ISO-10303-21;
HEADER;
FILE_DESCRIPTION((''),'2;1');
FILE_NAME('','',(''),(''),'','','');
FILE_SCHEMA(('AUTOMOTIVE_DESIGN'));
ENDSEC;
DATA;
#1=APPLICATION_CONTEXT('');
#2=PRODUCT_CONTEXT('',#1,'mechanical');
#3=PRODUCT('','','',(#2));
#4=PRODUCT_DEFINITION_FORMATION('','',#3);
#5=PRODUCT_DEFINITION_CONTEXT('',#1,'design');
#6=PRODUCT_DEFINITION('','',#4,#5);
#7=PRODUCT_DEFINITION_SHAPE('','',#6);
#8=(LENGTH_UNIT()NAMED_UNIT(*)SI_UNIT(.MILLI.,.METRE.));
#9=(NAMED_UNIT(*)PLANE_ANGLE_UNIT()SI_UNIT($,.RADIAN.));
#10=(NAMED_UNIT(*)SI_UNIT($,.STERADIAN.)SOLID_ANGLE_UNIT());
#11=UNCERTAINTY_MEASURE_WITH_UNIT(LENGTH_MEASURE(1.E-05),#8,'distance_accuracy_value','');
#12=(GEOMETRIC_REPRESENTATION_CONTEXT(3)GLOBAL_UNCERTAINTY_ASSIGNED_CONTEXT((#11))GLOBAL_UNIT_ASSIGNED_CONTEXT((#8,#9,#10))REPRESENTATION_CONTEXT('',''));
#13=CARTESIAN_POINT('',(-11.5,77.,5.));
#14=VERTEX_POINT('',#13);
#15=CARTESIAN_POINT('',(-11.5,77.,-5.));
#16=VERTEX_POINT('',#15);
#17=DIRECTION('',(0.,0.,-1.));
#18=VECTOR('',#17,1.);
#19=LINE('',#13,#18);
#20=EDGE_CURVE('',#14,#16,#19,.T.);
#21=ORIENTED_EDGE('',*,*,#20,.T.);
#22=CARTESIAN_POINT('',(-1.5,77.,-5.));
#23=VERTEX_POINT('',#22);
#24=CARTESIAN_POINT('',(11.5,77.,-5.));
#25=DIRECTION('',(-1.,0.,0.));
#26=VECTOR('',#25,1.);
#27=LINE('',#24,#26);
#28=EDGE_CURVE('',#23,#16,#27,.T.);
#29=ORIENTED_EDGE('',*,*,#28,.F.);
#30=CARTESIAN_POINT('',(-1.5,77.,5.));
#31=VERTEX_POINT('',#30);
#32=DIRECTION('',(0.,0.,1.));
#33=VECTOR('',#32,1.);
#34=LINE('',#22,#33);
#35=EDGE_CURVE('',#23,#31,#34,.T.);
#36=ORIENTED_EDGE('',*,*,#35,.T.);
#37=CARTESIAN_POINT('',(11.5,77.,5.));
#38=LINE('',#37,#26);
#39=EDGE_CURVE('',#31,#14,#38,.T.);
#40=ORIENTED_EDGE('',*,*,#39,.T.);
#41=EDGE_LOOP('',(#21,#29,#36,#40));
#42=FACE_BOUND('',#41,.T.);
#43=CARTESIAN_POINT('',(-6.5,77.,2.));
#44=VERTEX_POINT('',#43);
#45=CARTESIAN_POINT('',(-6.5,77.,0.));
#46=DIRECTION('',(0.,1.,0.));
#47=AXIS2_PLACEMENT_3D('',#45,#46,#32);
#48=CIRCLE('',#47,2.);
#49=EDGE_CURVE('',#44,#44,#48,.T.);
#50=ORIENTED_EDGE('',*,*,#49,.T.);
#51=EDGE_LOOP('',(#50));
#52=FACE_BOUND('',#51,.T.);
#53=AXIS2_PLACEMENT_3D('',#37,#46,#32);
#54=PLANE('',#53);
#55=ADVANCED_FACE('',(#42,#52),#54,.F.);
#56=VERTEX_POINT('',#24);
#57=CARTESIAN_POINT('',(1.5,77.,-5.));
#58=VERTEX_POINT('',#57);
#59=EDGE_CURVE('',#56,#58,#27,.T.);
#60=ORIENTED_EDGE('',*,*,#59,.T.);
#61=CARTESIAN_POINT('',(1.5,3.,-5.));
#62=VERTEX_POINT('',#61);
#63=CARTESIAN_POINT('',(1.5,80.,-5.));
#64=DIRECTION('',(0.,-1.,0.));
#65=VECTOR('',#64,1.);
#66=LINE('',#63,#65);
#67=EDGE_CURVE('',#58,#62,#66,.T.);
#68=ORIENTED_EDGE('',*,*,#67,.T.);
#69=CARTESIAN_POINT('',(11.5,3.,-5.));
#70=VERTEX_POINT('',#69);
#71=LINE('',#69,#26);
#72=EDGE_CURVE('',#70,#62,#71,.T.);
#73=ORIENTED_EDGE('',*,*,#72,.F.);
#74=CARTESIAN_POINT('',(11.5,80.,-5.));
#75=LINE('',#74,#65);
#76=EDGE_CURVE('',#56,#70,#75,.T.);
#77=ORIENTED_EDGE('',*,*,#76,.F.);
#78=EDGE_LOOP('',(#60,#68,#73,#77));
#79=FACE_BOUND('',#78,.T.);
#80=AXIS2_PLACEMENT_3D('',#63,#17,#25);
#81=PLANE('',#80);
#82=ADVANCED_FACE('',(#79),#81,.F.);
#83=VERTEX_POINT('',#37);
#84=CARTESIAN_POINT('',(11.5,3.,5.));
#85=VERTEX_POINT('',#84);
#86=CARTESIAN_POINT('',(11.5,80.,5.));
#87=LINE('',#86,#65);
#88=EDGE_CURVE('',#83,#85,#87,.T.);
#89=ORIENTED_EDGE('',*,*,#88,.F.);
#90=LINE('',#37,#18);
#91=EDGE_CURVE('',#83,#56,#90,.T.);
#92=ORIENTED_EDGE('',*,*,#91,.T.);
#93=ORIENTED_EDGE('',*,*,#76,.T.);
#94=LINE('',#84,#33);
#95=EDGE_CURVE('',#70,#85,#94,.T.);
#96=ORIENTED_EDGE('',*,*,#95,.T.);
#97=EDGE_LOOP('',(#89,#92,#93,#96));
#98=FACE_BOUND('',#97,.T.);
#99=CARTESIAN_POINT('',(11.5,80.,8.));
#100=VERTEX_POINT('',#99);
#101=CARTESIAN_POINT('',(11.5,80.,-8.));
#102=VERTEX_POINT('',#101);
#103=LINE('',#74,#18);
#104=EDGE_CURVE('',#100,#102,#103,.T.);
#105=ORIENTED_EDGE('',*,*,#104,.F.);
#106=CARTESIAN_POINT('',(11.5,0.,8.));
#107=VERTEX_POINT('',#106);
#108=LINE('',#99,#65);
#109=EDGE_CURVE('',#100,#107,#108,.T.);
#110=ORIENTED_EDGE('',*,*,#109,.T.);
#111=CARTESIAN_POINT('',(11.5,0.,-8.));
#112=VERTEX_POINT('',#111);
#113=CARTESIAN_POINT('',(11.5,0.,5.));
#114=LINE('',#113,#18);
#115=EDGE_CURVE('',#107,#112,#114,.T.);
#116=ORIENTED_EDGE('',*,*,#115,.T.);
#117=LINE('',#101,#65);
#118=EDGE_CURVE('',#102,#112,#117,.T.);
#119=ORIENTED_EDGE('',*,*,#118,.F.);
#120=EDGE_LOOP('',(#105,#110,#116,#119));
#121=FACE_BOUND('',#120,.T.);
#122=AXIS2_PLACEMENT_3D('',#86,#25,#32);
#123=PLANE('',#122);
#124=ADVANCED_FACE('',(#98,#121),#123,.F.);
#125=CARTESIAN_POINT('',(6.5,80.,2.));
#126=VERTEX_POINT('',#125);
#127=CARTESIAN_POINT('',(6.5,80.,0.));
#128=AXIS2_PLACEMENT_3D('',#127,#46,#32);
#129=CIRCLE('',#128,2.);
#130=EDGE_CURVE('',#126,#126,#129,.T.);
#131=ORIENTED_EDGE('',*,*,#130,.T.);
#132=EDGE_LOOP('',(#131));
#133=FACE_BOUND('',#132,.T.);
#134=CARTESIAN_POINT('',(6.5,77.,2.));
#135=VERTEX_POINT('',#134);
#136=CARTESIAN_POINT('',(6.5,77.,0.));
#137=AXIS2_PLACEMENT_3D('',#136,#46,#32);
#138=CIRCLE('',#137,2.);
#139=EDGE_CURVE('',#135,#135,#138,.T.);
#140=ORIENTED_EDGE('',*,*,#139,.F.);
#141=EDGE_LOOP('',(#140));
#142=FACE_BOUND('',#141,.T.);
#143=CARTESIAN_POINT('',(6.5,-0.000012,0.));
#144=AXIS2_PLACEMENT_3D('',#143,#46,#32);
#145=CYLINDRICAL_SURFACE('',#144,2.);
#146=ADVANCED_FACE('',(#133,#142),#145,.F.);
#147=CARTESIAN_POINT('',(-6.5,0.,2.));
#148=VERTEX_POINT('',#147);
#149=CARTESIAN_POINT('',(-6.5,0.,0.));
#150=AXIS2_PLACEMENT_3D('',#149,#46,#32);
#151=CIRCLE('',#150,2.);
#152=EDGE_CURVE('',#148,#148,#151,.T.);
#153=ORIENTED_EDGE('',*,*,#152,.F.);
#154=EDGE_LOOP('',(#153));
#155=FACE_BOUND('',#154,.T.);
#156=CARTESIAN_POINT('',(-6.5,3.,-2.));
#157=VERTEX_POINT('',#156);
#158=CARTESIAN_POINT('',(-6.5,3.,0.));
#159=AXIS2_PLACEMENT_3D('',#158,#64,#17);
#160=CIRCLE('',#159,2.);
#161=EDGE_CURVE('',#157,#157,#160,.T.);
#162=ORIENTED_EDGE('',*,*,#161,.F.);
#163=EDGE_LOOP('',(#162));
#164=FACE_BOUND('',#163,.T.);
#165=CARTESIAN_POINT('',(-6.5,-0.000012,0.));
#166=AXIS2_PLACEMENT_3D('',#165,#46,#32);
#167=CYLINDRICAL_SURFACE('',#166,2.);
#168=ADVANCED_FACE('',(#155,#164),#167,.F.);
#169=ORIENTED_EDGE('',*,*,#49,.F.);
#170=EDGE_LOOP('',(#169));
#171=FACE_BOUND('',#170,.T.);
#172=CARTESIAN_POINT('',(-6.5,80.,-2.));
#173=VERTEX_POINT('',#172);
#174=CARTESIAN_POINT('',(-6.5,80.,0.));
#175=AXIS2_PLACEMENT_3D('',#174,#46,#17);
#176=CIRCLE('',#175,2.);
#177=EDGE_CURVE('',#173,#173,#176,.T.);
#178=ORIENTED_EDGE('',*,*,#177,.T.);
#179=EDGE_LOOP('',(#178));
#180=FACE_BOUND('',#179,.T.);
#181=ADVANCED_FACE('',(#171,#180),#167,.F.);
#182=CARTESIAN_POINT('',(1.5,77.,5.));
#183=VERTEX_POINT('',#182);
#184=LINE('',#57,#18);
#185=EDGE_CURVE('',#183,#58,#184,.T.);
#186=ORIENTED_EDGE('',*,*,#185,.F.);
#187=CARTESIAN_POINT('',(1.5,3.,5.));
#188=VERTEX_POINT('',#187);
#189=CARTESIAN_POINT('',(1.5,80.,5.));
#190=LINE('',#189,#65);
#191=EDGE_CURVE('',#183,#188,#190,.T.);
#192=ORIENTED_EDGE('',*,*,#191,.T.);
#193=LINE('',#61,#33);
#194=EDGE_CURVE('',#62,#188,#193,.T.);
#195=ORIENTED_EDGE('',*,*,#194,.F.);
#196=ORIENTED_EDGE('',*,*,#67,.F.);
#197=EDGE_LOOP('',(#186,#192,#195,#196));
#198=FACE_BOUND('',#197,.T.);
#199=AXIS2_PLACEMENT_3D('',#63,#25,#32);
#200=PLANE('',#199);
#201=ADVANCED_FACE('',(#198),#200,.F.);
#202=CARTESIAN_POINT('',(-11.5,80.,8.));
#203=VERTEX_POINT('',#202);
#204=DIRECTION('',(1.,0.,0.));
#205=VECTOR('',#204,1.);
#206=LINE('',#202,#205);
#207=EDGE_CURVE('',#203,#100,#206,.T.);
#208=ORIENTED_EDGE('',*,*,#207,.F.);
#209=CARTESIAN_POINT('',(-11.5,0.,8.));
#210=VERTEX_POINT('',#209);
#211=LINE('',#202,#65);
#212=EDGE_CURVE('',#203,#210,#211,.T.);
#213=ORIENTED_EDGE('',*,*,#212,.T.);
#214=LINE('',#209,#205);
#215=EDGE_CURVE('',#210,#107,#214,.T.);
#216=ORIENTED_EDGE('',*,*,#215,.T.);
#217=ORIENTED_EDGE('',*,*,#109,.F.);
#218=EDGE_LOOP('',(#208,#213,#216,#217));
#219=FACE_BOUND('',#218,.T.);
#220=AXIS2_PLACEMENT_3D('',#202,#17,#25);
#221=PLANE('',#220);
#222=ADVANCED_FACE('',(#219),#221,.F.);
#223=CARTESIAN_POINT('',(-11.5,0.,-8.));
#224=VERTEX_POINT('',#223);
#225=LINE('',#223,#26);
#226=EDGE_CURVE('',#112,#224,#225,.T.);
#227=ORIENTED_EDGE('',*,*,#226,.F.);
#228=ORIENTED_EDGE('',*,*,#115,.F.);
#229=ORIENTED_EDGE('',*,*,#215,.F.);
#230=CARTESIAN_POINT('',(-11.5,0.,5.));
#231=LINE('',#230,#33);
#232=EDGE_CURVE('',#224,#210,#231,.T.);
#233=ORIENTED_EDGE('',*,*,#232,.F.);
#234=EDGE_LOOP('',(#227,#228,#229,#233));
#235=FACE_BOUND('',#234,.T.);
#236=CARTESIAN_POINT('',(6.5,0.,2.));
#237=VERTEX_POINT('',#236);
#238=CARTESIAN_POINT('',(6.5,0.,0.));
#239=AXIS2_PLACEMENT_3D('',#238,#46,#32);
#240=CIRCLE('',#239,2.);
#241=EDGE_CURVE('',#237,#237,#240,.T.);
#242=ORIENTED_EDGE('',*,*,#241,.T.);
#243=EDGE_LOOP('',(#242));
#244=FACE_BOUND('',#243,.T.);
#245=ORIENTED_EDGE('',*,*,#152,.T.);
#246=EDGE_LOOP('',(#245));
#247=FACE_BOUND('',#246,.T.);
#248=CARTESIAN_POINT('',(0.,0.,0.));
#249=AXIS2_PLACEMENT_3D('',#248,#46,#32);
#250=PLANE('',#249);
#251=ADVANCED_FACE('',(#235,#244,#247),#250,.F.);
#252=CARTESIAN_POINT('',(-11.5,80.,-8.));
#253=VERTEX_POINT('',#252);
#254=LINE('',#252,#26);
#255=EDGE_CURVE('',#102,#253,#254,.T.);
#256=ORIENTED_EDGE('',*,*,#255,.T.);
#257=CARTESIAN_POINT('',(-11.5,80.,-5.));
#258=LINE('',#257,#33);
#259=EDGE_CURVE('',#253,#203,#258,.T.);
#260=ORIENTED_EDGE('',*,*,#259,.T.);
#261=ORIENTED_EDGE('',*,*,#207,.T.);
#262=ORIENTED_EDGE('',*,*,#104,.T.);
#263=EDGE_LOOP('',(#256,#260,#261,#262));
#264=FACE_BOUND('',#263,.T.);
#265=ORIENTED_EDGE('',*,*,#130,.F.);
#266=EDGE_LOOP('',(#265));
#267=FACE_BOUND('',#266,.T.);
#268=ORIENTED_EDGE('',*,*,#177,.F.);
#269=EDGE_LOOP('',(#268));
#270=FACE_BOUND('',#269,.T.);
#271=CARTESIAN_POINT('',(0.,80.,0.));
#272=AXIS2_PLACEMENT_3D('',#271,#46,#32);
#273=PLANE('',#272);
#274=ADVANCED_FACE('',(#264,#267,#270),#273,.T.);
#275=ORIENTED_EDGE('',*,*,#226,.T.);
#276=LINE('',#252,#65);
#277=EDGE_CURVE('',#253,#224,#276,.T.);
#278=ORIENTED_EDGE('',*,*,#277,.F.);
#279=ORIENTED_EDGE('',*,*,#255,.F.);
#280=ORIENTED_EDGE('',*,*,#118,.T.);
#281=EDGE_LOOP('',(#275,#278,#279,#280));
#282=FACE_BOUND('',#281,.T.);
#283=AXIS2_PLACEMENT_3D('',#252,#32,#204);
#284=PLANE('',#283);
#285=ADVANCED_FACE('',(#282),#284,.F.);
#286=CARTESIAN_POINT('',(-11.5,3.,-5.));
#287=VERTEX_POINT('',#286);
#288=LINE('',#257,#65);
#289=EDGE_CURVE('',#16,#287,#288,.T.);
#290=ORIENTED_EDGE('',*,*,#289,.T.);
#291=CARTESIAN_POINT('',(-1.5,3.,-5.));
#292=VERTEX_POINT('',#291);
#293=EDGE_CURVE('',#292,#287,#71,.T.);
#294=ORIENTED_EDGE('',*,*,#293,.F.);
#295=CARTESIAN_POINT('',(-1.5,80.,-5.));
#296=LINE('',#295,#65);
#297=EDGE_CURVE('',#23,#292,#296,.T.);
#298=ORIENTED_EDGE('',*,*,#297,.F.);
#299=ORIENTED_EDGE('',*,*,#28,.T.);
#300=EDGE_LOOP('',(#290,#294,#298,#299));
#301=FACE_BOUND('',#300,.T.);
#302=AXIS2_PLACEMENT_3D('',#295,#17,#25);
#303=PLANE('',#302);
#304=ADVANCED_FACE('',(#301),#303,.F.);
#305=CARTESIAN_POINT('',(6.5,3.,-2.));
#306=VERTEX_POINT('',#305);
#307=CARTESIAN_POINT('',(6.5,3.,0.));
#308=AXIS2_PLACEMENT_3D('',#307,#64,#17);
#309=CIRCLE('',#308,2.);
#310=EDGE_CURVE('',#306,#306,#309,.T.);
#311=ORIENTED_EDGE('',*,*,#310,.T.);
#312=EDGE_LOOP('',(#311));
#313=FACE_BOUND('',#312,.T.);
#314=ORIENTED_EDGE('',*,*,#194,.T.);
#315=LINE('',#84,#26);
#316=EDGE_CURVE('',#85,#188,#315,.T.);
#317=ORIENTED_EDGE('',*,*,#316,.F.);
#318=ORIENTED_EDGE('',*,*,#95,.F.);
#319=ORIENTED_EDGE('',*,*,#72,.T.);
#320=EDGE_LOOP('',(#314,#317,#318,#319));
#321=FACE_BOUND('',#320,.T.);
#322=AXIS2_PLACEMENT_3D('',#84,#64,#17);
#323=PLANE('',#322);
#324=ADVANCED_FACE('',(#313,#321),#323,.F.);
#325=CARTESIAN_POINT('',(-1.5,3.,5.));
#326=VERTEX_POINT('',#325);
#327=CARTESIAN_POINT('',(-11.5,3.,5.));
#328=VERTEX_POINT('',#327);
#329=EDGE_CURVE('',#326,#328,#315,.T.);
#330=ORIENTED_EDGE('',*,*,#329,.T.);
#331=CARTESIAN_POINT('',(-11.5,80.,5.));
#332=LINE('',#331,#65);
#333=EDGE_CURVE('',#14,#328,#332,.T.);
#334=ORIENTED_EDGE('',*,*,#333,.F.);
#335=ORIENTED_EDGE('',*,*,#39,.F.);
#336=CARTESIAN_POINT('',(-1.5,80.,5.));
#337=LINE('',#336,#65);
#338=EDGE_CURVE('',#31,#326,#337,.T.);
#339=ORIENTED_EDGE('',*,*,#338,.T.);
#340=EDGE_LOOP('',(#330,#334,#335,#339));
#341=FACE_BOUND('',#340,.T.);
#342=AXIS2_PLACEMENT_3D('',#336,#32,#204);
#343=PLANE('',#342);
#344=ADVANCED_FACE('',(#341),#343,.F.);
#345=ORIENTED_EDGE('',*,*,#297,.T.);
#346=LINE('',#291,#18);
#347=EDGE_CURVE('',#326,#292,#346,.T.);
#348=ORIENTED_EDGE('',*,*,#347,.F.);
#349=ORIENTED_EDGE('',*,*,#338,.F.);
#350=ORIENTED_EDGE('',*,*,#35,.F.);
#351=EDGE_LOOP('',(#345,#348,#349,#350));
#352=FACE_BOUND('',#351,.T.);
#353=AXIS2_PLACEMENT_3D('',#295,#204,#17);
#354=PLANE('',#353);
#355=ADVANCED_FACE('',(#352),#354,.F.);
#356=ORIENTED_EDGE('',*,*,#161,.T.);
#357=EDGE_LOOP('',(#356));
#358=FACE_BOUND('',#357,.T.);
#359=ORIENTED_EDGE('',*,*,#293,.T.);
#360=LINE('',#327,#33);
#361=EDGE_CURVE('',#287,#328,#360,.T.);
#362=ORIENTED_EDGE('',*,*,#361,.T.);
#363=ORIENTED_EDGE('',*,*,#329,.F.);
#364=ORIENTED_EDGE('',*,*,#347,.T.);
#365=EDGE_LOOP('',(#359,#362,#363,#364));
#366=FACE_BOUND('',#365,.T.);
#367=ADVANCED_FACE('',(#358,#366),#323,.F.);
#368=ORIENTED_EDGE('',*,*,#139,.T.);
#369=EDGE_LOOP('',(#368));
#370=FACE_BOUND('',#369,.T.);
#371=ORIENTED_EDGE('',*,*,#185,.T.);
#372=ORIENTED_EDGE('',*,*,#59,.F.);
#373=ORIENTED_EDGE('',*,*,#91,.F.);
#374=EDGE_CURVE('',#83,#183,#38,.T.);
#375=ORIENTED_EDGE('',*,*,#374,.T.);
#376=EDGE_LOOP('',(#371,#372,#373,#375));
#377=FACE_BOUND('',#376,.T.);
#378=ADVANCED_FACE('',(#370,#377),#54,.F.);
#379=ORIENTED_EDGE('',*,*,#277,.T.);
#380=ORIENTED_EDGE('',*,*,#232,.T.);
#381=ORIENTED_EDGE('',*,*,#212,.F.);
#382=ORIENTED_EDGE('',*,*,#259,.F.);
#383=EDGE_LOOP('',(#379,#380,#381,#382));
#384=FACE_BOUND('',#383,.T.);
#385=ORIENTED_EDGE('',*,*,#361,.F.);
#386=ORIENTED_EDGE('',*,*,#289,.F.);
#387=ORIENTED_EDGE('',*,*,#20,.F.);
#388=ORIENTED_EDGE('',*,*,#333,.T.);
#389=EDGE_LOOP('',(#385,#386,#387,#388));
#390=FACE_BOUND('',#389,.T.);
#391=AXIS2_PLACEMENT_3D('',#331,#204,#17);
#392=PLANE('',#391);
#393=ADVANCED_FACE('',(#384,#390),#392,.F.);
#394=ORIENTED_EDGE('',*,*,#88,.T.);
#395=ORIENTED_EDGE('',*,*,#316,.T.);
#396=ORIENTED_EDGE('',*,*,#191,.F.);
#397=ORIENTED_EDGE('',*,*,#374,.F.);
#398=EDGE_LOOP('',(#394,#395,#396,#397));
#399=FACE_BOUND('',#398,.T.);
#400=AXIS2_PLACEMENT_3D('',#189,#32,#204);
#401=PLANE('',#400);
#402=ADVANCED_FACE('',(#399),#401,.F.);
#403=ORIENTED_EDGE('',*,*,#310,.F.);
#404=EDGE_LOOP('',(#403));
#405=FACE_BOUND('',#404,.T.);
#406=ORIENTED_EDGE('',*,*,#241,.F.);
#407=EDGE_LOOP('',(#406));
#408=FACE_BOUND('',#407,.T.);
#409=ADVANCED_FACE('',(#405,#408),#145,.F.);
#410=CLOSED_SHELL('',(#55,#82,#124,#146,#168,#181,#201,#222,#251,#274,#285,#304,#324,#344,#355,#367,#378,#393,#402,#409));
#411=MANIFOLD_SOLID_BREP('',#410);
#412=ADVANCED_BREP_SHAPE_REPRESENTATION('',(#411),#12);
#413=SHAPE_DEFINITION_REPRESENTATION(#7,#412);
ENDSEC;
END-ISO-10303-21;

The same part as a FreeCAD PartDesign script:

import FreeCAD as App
import Part
import Sketcher

V = App.Vector

doc = App.newDocument("Part")
body = doc.addObject("PartDesign::Body", "Body")

sketch1 = body.newObject("Sketcher::SketchObject", "Sketch")
sketch1.AttachmentSupport = (doc.getObject("XZ_Plane"), [""])
sketch1.MapMode = "FlatFace"
sketch1.addGeometry(Part.LineSegment(V(11.5, -5, 0), V(11.5, -8, 0)), False)
sketch1.addGeometry(Part.LineSegment(V(11.5, -8, 0), V(-11.5, -8, 0)), False)
sketch1.addGeometry(Part.LineSegment(V(-11.5, -8, 0), V(-11.5, -5, 0)), False)
sketch1.addGeometry(Part.LineSegment(V(-11.5, -5, 0), V(-1.5, -5, 0)), False)
sketch1.addGeometry(Part.LineSegment(V(-1.5, -5, 0), V(-1.5, 5, 0)), False)
sketch1.addGeometry(Part.LineSegment(V(-1.5, 5, 0), V(-11.5, 5, 0)), False)
sketch1.addGeometry(Part.LineSegment(V(-11.5, 5, 0), V(-11.5, 8, 0)), False)
sketch1.addGeometry(Part.LineSegment(V(-11.5, 8, 0), V(11.5, 8, 0)), False)
sketch1.addGeometry(Part.LineSegment(V(11.5, 8, 0), V(11.5, 5, 0)), False)
sketch1.addGeometry(Part.LineSegment(V(11.5, 5, 0), V(1.5, 5, 0)), False)
sketch1.addGeometry(Part.LineSegment(V(1.5, 5, 0), V(1.5, -5, 0)), False)
sketch1.addGeometry(Part.LineSegment(V(1.5, -5, 0), V(11.5, -5, 0)), False)
sketch1.addConstraint(Sketcher.Constraint("Coincident", 0, 2, 1, 1))
sketch1.addConstraint(Sketcher.Constraint("Coincident", 1, 2, 2, 1))
sketch1.addConstraint(Sketcher.Constraint("Coincident", 2, 2, 3, 1))
sketch1.addConstraint(Sketcher.Constraint("Coincident", 3, 2, 4, 1))
sketch1.addConstraint(Sketcher.Constraint("Coincident", 4, 2, 5, 1))
sketch1.addConstraint(Sketcher.Constraint("Coincident", 5, 2, 6, 1))
sketch1.addConstraint(Sketcher.Constraint("Coincident", 6, 2, 7, 1))
sketch1.addConstraint(Sketcher.Constraint("Coincident", 7, 2, 8, 1))
sketch1.addConstraint(Sketcher.Constraint("Coincident", 8, 2, 9, 1))
sketch1.addConstraint(Sketcher.Constraint("Coincident", 9, 2, 10, 1))
sketch1.addConstraint(Sketcher.Constraint("Coincident", 10, 2, 11, 1))
sketch1.addConstraint(Sketcher.Constraint("Coincident", 11, 2, 0, 1))
sketch1.addConstraint(Sketcher.Constraint("Vertical", 0))
sketch1.addConstraint(Sketcher.Constraint("Horizontal", 1))
sketch1.addConstraint(Sketcher.Constraint("Vertical", 2))
sketch1.addConstraint(Sketcher.Constraint("Horizontal", 3))
sketch1.addConstraint(Sketcher.Constraint("Vertical", 4))
sketch1.addConstraint(Sketcher.Constraint("Horizontal", 5))
sketch1.addConstraint(Sketcher.Constraint("Vertical", 6))
sketch1.addConstraint(Sketcher.Constraint("Horizontal", 7))
sketch1.addConstraint(Sketcher.Constraint("Vertical", 8))
sketch1.addConstraint(Sketcher.Constraint("Horizontal", 9))
sketch1.addConstraint(Sketcher.Constraint("Vertical", 10))
sketch1.addConstraint(Sketcher.Constraint("Horizontal", 11))
sketch1.addConstraint(Sketcher.Constraint("Symmetric", 0, 2, 6, 2, -1, 1))
sketch1.addConstraint(Sketcher.Constraint("Symmetric", 2, 2, 8, 2, -1, 1))
sketch1.addConstraint(Sketcher.Constraint("Symmetric", 4, 2, 10, 2, -1, 1))
sketch1.addConstraint(Sketcher.Constraint("Symmetric", 5, 2, 8, 2, -2))
sketch1.addConstraint(Sketcher.Constraint("Equal", 11, 4))
sketch1.addConstraint(Sketcher.Constraint("DistanceX", 1, 2, 1, 1, 23.0))
sketch1.addConstraint(Sketcher.Constraint("DistanceX", 3, 1, 3, 2, 10.0))
sketch1.addConstraint(Sketcher.Constraint("DistanceY", 0, 2, 0, 1, 3.0))
pad1 = body.newObject("PartDesign::Pad", "Pad")
pad1.Profile = sketch1
pad1.Length = 80
pad1.Reversed = True

sketch2 = body.newObject("Sketcher::SketchObject", "Sketch001")
sketch2.AttachmentSupport = (doc.getObject("YZ_Plane"), [""])
sketch2.MapMode = "FlatFace"
sketch2.addGeometry(Part.LineSegment(V(3, 5, 0), V(0, 5, 0)), False)
sketch2.addGeometry(Part.LineSegment(V(0, 5, 0), V(0, -5, 0)), False)
sketch2.addGeometry(Part.LineSegment(V(0, -5, 0), V(3, -5, 0)), False)
sketch2.addGeometry(Part.LineSegment(V(3, -5, 0), V(3, 5, 0)), False)
sketch2.addGeometry(Part.LineSegment(V(80, 5, 0), V(77, 5, 0)), False)
sketch2.addGeometry(Part.LineSegment(V(77, 5, 0), V(77, -5, 0)), False)
sketch2.addGeometry(Part.LineSegment(V(77, -5, 0), V(80, -5, 0)), False)
sketch2.addGeometry(Part.LineSegment(V(80, -5, 0), V(80, 5, 0)), False)
sketch2.addConstraint(Sketcher.Constraint("Coincident", 0, 2, 1, 1))
sketch2.addConstraint(Sketcher.Constraint("Coincident", 1, 2, 2, 1))
sketch2.addConstraint(Sketcher.Constraint("Coincident", 2, 2, 3, 1))
sketch2.addConstraint(Sketcher.Constraint("Coincident", 3, 2, 0, 1))
sketch2.addConstraint(Sketcher.Constraint("Coincident", 4, 2, 5, 1))
sketch2.addConstraint(Sketcher.Constraint("Coincident", 5, 2, 6, 1))
sketch2.addConstraint(Sketcher.Constraint("Coincident", 6, 2, 7, 1))
sketch2.addConstraint(Sketcher.Constraint("Coincident", 7, 2, 4, 1))
sketch2.addConstraint(Sketcher.Constraint("Horizontal", 0))
sketch2.addConstraint(Sketcher.Constraint("Vertical", 1))
sketch2.addConstraint(Sketcher.Constraint("Horizontal", 2))
sketch2.addConstraint(Sketcher.Constraint("Vertical", 3))
sketch2.addConstraint(Sketcher.Constraint("Horizontal", 4))
sketch2.addConstraint(Sketcher.Constraint("Vertical", 5))
sketch2.addConstraint(Sketcher.Constraint("Horizontal", 6))
sketch2.addConstraint(Sketcher.Constraint("Vertical", 7))
sketch2.addConstraint(Sketcher.Constraint("Symmetric", 0, 2, 1, 2, -1, 1))
sketch2.addConstraint(Sketcher.Constraint("Horizontal", 3, 2, 4, 2))
sketch2.addConstraint(Sketcher.Constraint("Horizontal", 2, 2, 5, 2))
sketch2.addConstraint(Sketcher.Constraint("Equal", 2, 4))
sketch2.addConstraint(Sketcher.Constraint("DistanceX", 0, 2, 0, 1, 3.0))
sketch2.addConstraint(Sketcher.Constraint("DistanceY", 1, 2, 1, 1, 10.0))
sketch2.addConstraint(Sketcher.Constraint("DistanceX", -1, 1, 4, 2, 77.0))
pad2 = body.newObject("PartDesign::Pad", "Pad001")
pad2.Profile = sketch2
pad2.Length = 23
pad2.Midplane = True

sketch3 = body.newObject("Sketcher::SketchObject", "Sketch002")
sketch3.AttachmentSupport = (doc.getObject("XZ_Plane"), [""])
sketch3.MapMode = "FlatFace"
sketch3.addGeometry(Part.Circle(V(6.5, 0, 0), V(0, 0, 1), 2), False)
sketch3.addGeometry(Part.Circle(V(-6.5, 0, 0), V(0, 0, 1), 2), False)
sketch3.addConstraint(Sketcher.Constraint("Equal", 0, 1))
sketch3.addConstraint(Sketcher.Constraint("Symmetric", 0, 3, 1, 3, -1, 1))
sketch3.addConstraint(Sketcher.Constraint("PointOnObject", 0, 3, -1))
sketch3.addConstraint(Sketcher.Constraint("Diameter", 0, 4.0))
sketch3.addConstraint(Sketcher.Constraint("DistanceX", 1, 3, 0, 3, 13.0))
pocket1 = body.newObject("PartDesign::Pocket", "Pocket")
pocket1.Profile = sketch3
pocket1.Type = "ThroughAll"
pocket1.Midplane = True

doc.recompute()
